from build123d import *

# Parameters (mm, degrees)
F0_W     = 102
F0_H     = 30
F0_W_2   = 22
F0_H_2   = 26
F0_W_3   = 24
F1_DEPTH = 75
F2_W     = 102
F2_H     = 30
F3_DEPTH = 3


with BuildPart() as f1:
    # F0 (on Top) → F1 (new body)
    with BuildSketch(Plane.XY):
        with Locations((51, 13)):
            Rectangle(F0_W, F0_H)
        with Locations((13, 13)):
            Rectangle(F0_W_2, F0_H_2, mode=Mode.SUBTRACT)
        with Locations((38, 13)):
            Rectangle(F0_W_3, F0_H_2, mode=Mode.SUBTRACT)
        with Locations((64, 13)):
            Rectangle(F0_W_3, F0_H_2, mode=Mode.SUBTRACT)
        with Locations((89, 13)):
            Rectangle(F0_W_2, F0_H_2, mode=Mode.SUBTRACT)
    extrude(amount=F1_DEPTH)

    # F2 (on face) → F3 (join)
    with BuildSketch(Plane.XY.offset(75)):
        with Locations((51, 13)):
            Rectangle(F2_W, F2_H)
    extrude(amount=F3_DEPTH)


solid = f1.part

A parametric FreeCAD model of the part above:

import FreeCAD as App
import Part
import Sketcher
from FreeCAD import Vector
Q = App.Units.Quantity

doc = App.newDocument("Part")
body = doc.addObject("PartDesign::Body", "Body")

# Sketch on XY plane
sketch1 = doc.addObject("Sketcher::SketchObject", "Sketch")
body.addObject(sketch1)
sketch1.AttachmentSupport = (doc.XY_Plane, [""])
sketch1.MapMode = "FlatFace"
sketch1.addGeometry(Part.LineSegment(Vector(0, 28, 0), Vector(0, -2, 0)), False)
sketch1.addGeometry(Part.LineSegment(Vector(0, -2, 0), Vector(102, -2, 0)), False)
sketch1.addGeometry(Part.LineSegment(Vector(102, -2, 0), Vector(102, 28, 0)), False)
sketch1.addGeometry(Part.LineSegment(Vector(102, 28, 0), Vector(0, 28, 0)), False)
sketch1.addGeometry(Part.LineSegment(Vector(24, 0, 0), Vector(2, 0, 0)), False)
sketch1.addGeometry(Part.LineSegment(Vector(2, 0, 0), Vector(2, 26, 0)), False)
sketch1.addGeometry(Part.LineSegment(Vector(2, 26, 0), Vector(24, 26, 0)), False)
sketch1.addGeometry(Part.LineSegment(Vector(24, 26, 0), Vector(24, 0, 0)), False)
sketch1.addGeometry(Part.LineSegment(Vector(50, 0, 0), Vector(26, 0, 0)), False)
sketch1.addGeometry(Part.LineSegment(Vector(26, 0, 0), Vector(26, 26, 0)), False)
sketch1.addGeometry(Part.LineSegment(Vector(26, 26, 0), Vector(50, 26, 0)), False)
sketch1.addGeometry(Part.LineSegment(Vector(50, 26, 0), Vector(50, 0, 0)), False)
sketch1.addGeometry(Part.LineSegment(Vector(76, 0, 0), Vector(52, 0, 0)), False)
sketch1.addGeometry(Part.LineSegment(Vector(52, 0, 0), Vector(52, 26, 0)), False)
sketch1.addGeometry(Part.LineSegment(Vector(52, 26, 0), Vector(76, 26, 0)), False)
sketch1.addGeometry(Part.LineSegment(Vector(76, 26, 0), Vector(76, 0, 0)), False)
sketch1.addGeometry(Part.LineSegment(Vector(100, 0, 0), Vector(78, 0, 0)), False)
sketch1.addGeometry(Part.LineSegment(Vector(78, 0, 0), Vector(78, 26, 0)), False)
sketch1.addGeometry(Part.LineSegment(Vector(78, 26, 0), Vector(100, 26, 0)), False)
sketch1.addGeometry(Part.LineSegment(Vector(100, 26, 0), Vector(100, 0, 0)), False)
sketch1.addConstraint(Sketcher.Constraint("Coincident", 0, 2, 1, 1))
sketch1.addConstraint(Sketcher.Constraint("Coincident", 1, 2, 2, 1))
sketch1.addConstraint(Sketcher.Constraint("Coincident", 2, 2, 3, 1))
sketch1.addConstraint(Sketcher.Constraint("Coincident", 3, 2, 0, 1))
sketch1.addConstraint(Sketcher.Constraint("Coincident", 4, 2, 5, 1))
sketch1.addConstraint(Sketcher.Constraint("Coincident", 5, 2, 6, 1))
sketch1.addConstraint(Sketcher.Constraint("Coincident", 6, 2, 7, 1))
sketch1.addConstraint(Sketcher.Constraint("Coincident", 7, 2, 4, 1))
sketch1.addConstraint(Sketcher.Constraint("Coincident", 8, 2, 9, 1))
sketch1.addConstraint(Sketcher.Constraint("Coincident", 9, 2, 10, 1))
sketch1.addConstraint(Sketcher.Constraint("Coincident", 10, 2, 11, 1))
sketch1.addConstraint(Sketcher.Constraint("Coincident", 11, 2, 8, 1))
sketch1.addConstraint(Sketcher.Constraint("Coincident", 12, 2, 13, 1))
sketch1.addConstraint(Sketcher.Constraint("Coincident", 13, 2, 14, 1))
sketch1.addConstraint(Sketcher.Constraint("Coincident", 14, 2, 15, 1))
sketch1.addConstraint(Sketcher.Constraint("Coincident", 15, 2, 12, 1))
sketch1.addConstraint(Sketcher.Constraint("Coincident", 16, 2, 17, 1))
sketch1.addConstraint(Sketcher.Constraint("Coincident", 17, 2, 18, 1))
sketch1.addConstraint(Sketcher.Constraint("Coincident", 18, 2, 19, 1))
sketch1.addConstraint(Sketcher.Constraint("Coincident", 19, 2, 16, 1))
sketch1.addConstraint(Sketcher.Constraint("Vertical", 0))
sketch1.addConstraint(Sketcher.Constraint("Horizontal", 1))
sketch1.addConstraint(Sketcher.Constraint("Vertical", 2))
sketch1.addConstraint(Sketcher.Constraint("Horizontal", 3))
sketch1.addConstraint(Sketcher.Constraint("Horizontal", 4))
sketch1.addConstraint(Sketcher.Constraint("Vertical", 5))
sketch1.addConstraint(Sketcher.Constraint("Horizontal", 6))
sketch1.addConstraint(Sketcher.Constraint("Vertical", 7))
sketch1.addConstraint(Sketcher.Constraint("Horizontal", 8))
sketch1.addConstraint(Sketcher.Constraint("Vertical", 9))
sketch1.addConstraint(Sketcher.Constraint("Horizontal", 10))
sketch1.addConstraint(Sketcher.Constraint("Vertical", 11))
sketch1.addConstraint(Sketcher.Constraint("Horizontal", 12))
sketch1.addConstraint(Sketcher.Constraint("Vertical", 13))
sketch1.addConstraint(Sketcher.Constraint("Horizontal", 14))
sketch1.addConstraint(Sketcher.Constraint("Vertical", 15))
sketch1.addConstraint(Sketcher.Constraint("Horizontal", 16))
sketch1.addConstraint(Sketcher.Constraint("Vertical", 17))
sketch1.addConstraint(Sketcher.Constraint("Horizontal", 18))
sketch1.addConstraint(Sketcher.Constraint("Vertical", 19))
sketch1.addConstraint(Sketcher.Constraint("PointOnObject", 0, 2, -2))
sketch1.addConstraint(Sketcher.Constraint("PointOnObject", 4, 2, -1))
sketch1.addConstraint(Sketcher.Constraint("PointOnObject", 8, 2, -1))
sketch1.addConstraint(Sketcher.Constraint("PointOnObject", 12, 2, -1))
sketch1.addConstraint(Sketcher.Constraint("PointOnObject", 16, 2, -1))
sketch1.addConstraint(Sketcher.Constraint("Horizontal", 6, 2, 9, 2))
sketch1.addConstraint(Sketcher.Constraint("Horizontal", 10, 2, 13, 2))
sketch1.addConstraint(Sketcher.Constraint("Horizontal", 14, 2, 17, 2))
sketch1.addConstraint(Sketcher.Constraint("Equal", 10, 12))
sketch1.addConstraint(Sketcher.Constraint("Equal", 6, 16))
sketch1.addConstraint(Sketcher.Constraint("DistanceX", 1, 1, 1, 2, Q("102 mm")))
sketch1.addConstraint(Sketcher.Constraint("DistanceX", 4, 2, 4, 1, Q("22 mm")))
sketch1.addConstraint(Sketcher.Constraint("DistanceX", 8, 2, 8, 1, Q("24 mm")))
sketch1.addConstraint(Sketcher.Constraint("DistanceY", 0, 2, 0, 1, Q("30 mm")))
sketch1.addConstraint(Sketcher.Constraint("DistanceY", 5, 1, 5, 2, Q("26 mm")))
sketch1.addConstraint(Sketcher.Constraint("DistanceY", 0, 2, -1, 1, Q("2 mm")))
sketch1.addConstraint(Sketcher.Constraint("DistanceX", -1, 1, 4, 2, Q("2 mm")))
sketch1.addConstraint(Sketcher.Constraint("DistanceX", -1, 1, 8, 2, Q("26 mm")))
sketch1.addConstraint(Sketcher.Constraint("DistanceX", -1, 1, 12, 2, Q("52 mm")))
sketch1.addConstraint(Sketcher.Constraint("DistanceX", -1, 1, 16, 2, Q("78 mm")))
pad1 = doc.addObject("PartDesign::Pad", "Pad")
body.addObject(pad1)
pad1.Profile = sketch1
pad1.Length = 75

# Sketch on XY plane
sketch2 = doc.addObject("Sketcher::SketchObject", "Sketch001")
body.addObject(sketch2)
sketch2.AttachmentSupport = (doc.XY_Plane, [""])
sketch2.MapMode = "FlatFace"
sketch2.AttachmentOffset = App.Placement(Vector(0, 0, 75), App.Rotation())
sketch2.addGeometry(Part.LineSegment(Vector(0, 28, 0), Vector(0, -2, 0)), False)
sketch2.addGeometry(Part.LineSegment(Vector(0, -2, 0), Vector(102, -2, 0)), False)
sketch2.addGeometry(Part.LineSegment(Vector(102, -2, 0), Vector(102, 28, 0)), False)
sketch2.addGeometry(Part.LineSegment(Vector(102, 28, 0), Vector(0, 28, 0)), False)
sketch2.addConstraint(Sketcher.Constraint("Coincident", 0, 2, 1, 1))
sketch2.addConstraint(Sketcher.Constraint("Coincident", 1, 2, 2, 1))
sketch2.addConstraint(Sketcher.Constraint("Coincident", 2, 2, 3, 1))
sketch2.addConstraint(Sketcher.Constraint("Coincident", 3, 2, 0, 1))
sketch2.addConstraint(Sketcher.Constraint("Vertical", 0))
sketch2.addConstraint(Sketcher.Constraint("Horizontal", 1))
sketch2.addConstraint(Sketcher.Constraint("Vertical", 2))
sketch2.addConstraint(Sketcher.Constraint("Horizontal", 3))
sketch2.addConstraint(Sketcher.Constraint("PointOnObject", 0, 2, -2))
sketch2.addConstraint(Sketcher.Constraint("DistanceX", 1, 1, 1, 2, Q("102 mm")))
sketch2.addConstraint(Sketcher.Constraint("DistanceY", 0, 2, 0, 1, Q("30 mm")))
sketch2.addConstraint(Sketcher.Constraint("DistanceY", 0, 2, -1, 1, Q("2 mm")))
pad2 = doc.addObject("PartDesign::Pad", "Pad001")
body.addObject(pad2)
pad2.Profile = sketch2
pad2.Length = 3

doc.recompute()
